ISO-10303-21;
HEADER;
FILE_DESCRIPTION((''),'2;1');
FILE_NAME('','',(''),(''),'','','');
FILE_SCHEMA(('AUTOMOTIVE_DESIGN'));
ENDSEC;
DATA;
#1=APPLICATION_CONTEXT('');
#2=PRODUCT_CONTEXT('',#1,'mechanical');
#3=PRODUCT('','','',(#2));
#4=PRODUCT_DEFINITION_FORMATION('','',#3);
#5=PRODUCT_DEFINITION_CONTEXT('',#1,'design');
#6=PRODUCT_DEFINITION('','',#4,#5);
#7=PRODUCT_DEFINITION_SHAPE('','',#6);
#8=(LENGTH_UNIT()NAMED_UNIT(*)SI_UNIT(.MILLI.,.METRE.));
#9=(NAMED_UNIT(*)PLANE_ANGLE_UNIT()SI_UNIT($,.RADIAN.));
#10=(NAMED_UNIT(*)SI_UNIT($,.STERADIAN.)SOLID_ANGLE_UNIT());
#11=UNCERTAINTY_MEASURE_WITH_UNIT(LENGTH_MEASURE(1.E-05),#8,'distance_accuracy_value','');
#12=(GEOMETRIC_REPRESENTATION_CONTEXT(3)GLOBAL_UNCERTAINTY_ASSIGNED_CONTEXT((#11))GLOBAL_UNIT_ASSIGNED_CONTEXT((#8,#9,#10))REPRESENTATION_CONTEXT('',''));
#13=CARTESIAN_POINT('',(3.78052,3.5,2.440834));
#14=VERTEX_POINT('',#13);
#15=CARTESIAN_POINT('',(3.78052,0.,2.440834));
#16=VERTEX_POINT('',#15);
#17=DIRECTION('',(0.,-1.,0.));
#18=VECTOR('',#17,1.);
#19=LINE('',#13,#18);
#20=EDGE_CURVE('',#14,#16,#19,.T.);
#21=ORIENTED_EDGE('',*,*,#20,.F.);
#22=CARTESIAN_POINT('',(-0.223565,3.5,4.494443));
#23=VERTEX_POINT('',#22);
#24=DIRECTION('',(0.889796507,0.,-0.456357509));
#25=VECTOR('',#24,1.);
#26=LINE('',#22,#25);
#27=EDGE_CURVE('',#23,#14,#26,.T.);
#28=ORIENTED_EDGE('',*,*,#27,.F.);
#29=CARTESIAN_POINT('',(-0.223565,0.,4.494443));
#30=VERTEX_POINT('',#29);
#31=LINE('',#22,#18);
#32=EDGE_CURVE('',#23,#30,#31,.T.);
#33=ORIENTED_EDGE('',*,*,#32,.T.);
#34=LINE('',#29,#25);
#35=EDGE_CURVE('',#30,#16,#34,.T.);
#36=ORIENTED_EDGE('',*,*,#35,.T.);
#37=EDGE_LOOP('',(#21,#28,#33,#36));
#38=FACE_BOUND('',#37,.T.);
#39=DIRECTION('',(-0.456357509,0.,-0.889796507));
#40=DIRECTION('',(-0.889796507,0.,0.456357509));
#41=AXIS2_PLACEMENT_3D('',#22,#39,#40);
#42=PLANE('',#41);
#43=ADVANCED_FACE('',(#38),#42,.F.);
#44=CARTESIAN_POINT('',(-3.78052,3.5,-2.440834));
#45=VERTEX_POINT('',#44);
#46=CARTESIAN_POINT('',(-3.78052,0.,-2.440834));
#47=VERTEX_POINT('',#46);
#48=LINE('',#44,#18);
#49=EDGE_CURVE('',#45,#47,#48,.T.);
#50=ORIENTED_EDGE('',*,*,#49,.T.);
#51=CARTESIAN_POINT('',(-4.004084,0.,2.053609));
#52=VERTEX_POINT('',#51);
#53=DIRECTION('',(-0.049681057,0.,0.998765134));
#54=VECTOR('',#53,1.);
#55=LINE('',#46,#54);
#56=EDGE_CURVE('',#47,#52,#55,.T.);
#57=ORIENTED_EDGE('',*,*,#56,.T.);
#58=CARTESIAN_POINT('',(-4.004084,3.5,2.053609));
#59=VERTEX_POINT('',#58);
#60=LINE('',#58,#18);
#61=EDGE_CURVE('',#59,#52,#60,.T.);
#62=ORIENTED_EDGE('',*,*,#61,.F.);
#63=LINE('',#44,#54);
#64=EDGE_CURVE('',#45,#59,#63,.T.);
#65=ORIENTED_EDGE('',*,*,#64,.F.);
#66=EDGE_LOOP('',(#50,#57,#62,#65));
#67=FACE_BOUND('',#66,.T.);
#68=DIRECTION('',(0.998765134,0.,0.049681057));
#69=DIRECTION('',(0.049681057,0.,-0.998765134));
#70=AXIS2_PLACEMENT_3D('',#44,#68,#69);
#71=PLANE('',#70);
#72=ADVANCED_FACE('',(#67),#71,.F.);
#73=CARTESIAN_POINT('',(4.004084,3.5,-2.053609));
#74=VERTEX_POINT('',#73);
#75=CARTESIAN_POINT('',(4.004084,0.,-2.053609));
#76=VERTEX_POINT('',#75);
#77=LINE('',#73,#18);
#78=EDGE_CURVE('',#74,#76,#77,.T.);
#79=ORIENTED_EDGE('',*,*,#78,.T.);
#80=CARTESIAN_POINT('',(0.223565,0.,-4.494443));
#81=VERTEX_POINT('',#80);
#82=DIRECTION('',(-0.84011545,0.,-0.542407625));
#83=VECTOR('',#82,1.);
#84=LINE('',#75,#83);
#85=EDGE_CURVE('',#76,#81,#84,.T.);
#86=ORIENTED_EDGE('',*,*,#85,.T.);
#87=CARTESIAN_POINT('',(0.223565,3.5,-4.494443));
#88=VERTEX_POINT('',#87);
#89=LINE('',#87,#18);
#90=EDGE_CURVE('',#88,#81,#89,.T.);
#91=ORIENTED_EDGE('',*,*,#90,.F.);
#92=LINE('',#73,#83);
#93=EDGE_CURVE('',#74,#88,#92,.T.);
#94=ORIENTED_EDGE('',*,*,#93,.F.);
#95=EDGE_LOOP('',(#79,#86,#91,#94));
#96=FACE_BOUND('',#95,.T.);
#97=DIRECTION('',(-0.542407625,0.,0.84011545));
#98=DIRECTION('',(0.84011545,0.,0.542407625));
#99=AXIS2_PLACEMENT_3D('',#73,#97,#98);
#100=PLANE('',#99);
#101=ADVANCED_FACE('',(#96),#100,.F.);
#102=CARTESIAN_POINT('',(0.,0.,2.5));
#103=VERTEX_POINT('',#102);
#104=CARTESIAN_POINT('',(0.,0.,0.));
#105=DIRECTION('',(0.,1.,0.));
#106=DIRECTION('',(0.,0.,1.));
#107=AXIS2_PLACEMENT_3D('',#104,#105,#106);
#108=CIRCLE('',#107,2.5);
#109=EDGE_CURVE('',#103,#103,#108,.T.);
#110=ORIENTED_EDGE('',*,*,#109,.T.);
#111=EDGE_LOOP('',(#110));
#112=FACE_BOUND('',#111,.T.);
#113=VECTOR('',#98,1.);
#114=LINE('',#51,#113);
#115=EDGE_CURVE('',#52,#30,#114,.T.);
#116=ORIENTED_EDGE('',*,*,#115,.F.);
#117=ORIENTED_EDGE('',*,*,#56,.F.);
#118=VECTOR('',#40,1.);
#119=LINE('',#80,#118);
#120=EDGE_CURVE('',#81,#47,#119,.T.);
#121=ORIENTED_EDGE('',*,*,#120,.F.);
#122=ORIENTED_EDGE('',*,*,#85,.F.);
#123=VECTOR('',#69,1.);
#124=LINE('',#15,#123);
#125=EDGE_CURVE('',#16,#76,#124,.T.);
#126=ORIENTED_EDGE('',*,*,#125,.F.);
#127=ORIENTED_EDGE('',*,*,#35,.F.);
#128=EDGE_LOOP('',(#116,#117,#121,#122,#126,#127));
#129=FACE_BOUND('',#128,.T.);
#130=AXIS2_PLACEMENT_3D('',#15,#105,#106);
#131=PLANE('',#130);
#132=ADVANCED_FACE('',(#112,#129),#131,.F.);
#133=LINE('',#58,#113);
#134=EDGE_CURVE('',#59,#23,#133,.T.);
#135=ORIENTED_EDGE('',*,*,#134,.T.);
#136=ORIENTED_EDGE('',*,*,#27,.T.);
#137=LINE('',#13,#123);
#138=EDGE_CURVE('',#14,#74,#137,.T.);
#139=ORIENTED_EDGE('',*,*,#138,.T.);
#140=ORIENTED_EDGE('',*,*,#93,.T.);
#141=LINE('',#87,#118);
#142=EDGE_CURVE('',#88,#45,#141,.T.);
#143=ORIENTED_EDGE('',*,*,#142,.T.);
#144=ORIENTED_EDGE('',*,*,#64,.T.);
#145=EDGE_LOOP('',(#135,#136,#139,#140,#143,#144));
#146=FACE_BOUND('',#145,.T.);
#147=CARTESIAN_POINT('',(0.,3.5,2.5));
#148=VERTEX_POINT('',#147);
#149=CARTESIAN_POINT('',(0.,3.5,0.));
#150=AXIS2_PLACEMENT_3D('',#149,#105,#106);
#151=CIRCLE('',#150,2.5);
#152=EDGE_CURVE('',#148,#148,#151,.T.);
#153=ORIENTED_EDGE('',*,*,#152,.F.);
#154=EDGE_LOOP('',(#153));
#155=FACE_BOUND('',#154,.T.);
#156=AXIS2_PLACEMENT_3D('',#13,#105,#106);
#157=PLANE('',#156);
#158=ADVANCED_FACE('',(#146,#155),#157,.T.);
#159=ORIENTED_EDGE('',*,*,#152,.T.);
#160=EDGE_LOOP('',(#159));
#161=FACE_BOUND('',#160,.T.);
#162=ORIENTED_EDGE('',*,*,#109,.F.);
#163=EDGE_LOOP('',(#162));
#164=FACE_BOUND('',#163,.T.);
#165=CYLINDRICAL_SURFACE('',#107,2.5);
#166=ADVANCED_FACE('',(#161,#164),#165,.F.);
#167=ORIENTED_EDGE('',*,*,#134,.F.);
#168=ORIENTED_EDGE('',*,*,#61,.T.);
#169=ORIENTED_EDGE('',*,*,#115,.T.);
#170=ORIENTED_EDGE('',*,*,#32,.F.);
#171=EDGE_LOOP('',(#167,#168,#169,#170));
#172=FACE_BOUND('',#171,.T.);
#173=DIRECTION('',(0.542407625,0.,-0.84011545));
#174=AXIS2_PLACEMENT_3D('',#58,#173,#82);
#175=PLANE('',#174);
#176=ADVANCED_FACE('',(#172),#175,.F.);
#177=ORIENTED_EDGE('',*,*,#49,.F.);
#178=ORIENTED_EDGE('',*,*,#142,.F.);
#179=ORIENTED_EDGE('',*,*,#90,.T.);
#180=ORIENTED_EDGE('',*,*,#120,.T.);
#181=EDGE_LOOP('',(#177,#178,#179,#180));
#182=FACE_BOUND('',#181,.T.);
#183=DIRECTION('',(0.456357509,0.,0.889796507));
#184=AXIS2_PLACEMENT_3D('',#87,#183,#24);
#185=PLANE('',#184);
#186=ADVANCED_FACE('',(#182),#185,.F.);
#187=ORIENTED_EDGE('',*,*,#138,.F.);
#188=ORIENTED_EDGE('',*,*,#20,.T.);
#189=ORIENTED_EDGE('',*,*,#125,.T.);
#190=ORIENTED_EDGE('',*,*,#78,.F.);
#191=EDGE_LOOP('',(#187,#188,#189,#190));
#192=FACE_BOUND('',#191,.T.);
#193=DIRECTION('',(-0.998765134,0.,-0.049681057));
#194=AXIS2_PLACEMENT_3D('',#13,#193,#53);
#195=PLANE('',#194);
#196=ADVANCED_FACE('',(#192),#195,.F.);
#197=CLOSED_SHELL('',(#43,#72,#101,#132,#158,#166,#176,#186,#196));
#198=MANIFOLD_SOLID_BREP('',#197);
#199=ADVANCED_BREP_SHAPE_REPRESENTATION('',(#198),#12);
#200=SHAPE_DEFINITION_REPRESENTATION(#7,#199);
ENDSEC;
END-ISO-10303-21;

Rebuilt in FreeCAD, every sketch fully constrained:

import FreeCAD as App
import Part
import Sketcher
from FreeCAD import Vector


def add_polygon(sketch, points):
    """Adds a closed chain of lines whose ends are joined by coincident constraints."""
    first, n = sketch.GeometryCount, len(points)
    for a, b in zip(points, points[1:] + points[:1]):
        sketch.addGeometry(Part.LineSegment(App.Vector(*a, 0), App.Vector(*b, 0)), False)
    for i in range(n):
        sketch.addConstraint(Sketcher.Constraint("Coincident", first + i, 2, first + (i + 1) % n, 1))

doc = App.newDocument("Part")
body = doc.addObject("PartDesign::Body", "Body")

# Sketch on XZ plane
sketch1 = doc.addObject("Sketcher::SketchObject", "Sketch")
body.addObject(sketch1)
sketch1.AttachmentSupport = (doc.XZ_Plane, [""])
sketch1.MapMode = "FlatFace"
add_polygon(sketch1, [(3.8, 2.4), (4, -2.1), (0.2, -4.5), (-3.8, -2.4), (-4, 2.1), (-0.2, 4.5)])  # lines 0-5
sketch1.addConstraint(Sketcher.Constraint("Symmetric", 0, 2, 3, 2, -1, 1))
sketch1.addConstraint(Sketcher.Constraint("Symmetric", 1, 2, 4, 2, -1, 1))
sketch1.addConstraint(Sketcher.Constraint("Symmetric", 2, 2, 5, 2, -1, 1))
sketch1.addConstraint(Sketcher.Constraint("Equal", 0, 1))
sketch1.addConstraint(Sketcher.Constraint("Equal", 1, 2))
sketch1.addConstraint(Sketcher.Constraint("Distance", 0, 4.5))
sketch1.addConstraint(Sketcher.Constraint("DistanceY", 0, 2, -1, 1, 2.053609))
sketch1.addConstraint(Sketcher.Constraint("DistanceX", 2, 2, -1, 1, 3.78052))
sketch1.addConstraint(Sketcher.Constraint("DistanceX", 1, 2, 0, 2, 3.78052))
pad1 = doc.addObject("PartDesign::Pad", "Pad")
body.addObject(pad1)
pad1.Profile = sketch1
pad1.Length = 3.5
pad1.Reversed = True

# Sketch on XZ plane
sketch2 = doc.addObject("Sketcher::SketchObject", "Sketch001")
body.addObject(sketch2)
sketch2.AttachmentSupport = (doc.XZ_Plane, [""])
sketch2.MapMode = "FlatFace"
sketch2.AttachmentOffset = App.Placement(Vector(0, 0, -3.5), App.Rotation())
sketch2.addGeometry(Part.Circle(Vector(0, 0, 0), Vector(0, 0, 1), 2.5), False)
sketch2.addConstraint(Sketcher.Constraint("Coincident", 0, 3, -1, 1))
sketch2.addConstraint(Sketcher.Constraint("Diameter", 0, 5.0))
pocket1 = doc.addObject("PartDesign::Pocket", "Pocket")
body.addObject(pocket1)
pocket1.Profile = sketch2
pocket1.Length = 3.5
pocket1.Reversed = True

doc.recompute()
